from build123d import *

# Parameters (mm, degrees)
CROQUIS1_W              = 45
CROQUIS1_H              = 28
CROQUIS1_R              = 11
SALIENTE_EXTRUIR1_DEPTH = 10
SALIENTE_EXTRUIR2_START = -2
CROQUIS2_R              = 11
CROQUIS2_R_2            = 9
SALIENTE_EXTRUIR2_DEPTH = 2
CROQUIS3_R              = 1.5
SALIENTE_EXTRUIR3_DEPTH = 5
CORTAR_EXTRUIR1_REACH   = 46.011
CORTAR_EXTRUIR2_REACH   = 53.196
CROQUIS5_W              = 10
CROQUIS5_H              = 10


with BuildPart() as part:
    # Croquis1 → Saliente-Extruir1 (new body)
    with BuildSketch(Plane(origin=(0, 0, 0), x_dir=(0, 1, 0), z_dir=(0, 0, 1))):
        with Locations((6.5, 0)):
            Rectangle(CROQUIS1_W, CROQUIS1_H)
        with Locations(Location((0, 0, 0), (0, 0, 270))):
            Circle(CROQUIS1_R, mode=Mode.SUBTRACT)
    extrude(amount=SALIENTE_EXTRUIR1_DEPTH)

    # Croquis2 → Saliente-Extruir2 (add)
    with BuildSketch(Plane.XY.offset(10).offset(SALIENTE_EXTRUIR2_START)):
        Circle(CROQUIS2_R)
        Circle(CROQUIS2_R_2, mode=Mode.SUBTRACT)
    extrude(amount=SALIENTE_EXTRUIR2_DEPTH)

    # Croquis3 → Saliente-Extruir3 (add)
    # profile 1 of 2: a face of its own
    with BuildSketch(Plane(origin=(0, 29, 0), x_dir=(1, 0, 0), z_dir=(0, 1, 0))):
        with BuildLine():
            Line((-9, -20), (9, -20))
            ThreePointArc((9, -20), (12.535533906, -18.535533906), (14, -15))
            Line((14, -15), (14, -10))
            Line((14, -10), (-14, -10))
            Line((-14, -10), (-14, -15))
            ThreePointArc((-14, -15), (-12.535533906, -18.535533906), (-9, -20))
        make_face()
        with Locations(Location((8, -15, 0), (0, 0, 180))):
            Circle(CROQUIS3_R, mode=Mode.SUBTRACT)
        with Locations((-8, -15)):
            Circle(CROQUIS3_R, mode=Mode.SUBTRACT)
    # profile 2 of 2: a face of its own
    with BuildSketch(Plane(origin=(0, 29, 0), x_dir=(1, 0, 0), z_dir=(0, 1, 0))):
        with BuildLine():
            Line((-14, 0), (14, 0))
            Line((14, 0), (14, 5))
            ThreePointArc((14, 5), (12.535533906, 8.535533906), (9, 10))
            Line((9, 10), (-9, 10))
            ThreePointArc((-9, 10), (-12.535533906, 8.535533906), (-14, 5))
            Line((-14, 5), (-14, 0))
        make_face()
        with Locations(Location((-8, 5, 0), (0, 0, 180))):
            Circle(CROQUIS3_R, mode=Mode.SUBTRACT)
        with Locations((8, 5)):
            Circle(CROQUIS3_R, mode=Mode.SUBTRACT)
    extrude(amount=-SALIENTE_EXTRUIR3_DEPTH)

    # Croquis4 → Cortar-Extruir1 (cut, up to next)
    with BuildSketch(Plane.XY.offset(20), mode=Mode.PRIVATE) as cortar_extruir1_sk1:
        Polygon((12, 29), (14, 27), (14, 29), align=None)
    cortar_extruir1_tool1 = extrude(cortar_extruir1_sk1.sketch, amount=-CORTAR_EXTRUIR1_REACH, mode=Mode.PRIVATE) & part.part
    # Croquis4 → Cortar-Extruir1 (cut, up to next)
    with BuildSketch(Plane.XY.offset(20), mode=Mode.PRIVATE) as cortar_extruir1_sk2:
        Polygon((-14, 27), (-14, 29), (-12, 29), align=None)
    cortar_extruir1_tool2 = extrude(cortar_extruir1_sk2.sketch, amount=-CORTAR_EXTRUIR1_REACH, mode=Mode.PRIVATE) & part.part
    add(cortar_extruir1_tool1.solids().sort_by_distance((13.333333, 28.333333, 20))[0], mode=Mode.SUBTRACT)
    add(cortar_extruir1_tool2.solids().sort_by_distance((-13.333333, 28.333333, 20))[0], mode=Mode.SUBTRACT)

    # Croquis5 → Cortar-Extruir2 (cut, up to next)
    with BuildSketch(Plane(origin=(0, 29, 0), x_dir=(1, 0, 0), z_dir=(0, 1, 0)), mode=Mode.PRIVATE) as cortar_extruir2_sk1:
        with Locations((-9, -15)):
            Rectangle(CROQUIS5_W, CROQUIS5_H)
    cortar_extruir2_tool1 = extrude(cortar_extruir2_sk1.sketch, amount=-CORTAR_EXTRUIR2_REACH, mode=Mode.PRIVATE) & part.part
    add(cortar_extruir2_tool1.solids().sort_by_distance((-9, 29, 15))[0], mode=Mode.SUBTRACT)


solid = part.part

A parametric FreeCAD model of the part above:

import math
import FreeCAD as App
import Part
import Sketcher
from FreeCAD import Vector


def add_polygon(sketch, points):
    """Adds a closed chain of lines whose ends are joined by coincident constraints."""
    first, n = sketch.GeometryCount, len(points)
    for a, b in zip(points, points[1:] + points[:1]):
        sketch.addGeometry(Part.LineSegment(App.Vector(*a, 0), App.Vector(*b, 0)), False)
    for i in range(n):
        sketch.addConstraint(Sketcher.Constraint("Coincident", first + i, 2, first + (i + 1) % n, 1))

doc = App.newDocument("Part")
body = doc.addObject("PartDesign::Body", "Body")

# Sketch on XY plane
sketch1 = body.newObject("Sketcher::SketchObject", "Sketch")
sketch1.AttachmentSupport = (doc.getObject("XY_Plane"), [""])
sketch1.MapMode = "FlatFace"
add_polygon(sketch1, [(-14, -16), (14, -16), (14, 29), (-14, 29)])  # lines 0-3
sketch1.addGeometry(Part.Circle(Vector(0, 0, 0), Vector(0, 0, 1), 11), False)  # 4
sketch1.addConstraint([
    Sketcher.Constraint("Horizontal", 0),
    Sketcher.Constraint("Vertical", 1),
    Sketcher.Constraint("Horizontal", 2),
    Sketcher.Constraint("Vertical", 3),
    Sketcher.Constraint("Coincident", 4, 3, -1, 1),
    Sketcher.Constraint("Diameter", 4, 22.0),
    Sketcher.Constraint("DistanceX", 0, 1, 0, 2, 28.0),
    Sketcher.Constraint("DistanceY", 1, 1, 1, 2, 45.0),
    Sketcher.Constraint("DistanceX", -1, 1, 0, 2, 14.0),
    Sketcher.Constraint("DistanceY", 0, 2, -1, 1, 16.0),
])
pad1 = body.newObject("PartDesign::Pad", "Pad")
pad1.Profile = sketch1
pad1.Length = 10

# Sketch on XY plane
sketch2 = body.newObject("Sketcher::SketchObject", "Sketch001")
sketch2.AttachmentSupport = (doc.getObject("XY_Plane"), [""])
sketch2.MapMode = "FlatFace"
sketch2.AttachmentOffset = App.Placement(Vector(0, 0, 8), App.Rotation())
sketch2.addGeometry([
    Part.Circle(Vector(0, 0, 0), Vector(0, 0, 1), 11),
    Part.Circle(Vector(0, 0, 0), Vector(0, 0, 1), 9),
], False)
sketch2.addConstraint([
    Sketcher.Constraint("Coincident", 0, 3, -1, 1),
    Sketcher.Constraint("Coincident", 1, 3, -1, 1),
    Sketcher.Constraint("Diameter", 0, 22.0),
    Sketcher.Constraint("Diameter", 1, 18.0),
])
pad2 = body.newObject("PartDesign::Pad", "Pad001")
pad2.Profile = sketch2
pad2.Length = 2

# Sketch on XZ plane
sketch3 = body.newObject("Sketcher::SketchObject", "Sketch002")
sketch3.AttachmentSupport = (doc.getObject("XZ_Plane"), [""])
sketch3.MapMode = "FlatFace"
sketch3.AttachmentOffset = App.Placement(Vector(0, 0, -29), App.Rotation())
sketch3.addGeometry([
    Part.LineSegment(Vector(-9, 20, 0), Vector(9, 20, 0)),  # 0
    Part.ArcOfCircle(Part.Circle(Vector(9, 15, 0), Vector(0, 0, 1), 5), math.radians(0), math.radians(90)),  # 1
    Part.LineSegment(Vector(14, 15, 0), Vector(14, 10, 0)),  # 2
    Part.LineSegment(Vector(14, 10, 0), Vector(-14, 10, 0)),  # 3
    Part.LineSegment(Vector(-14, 10, 0), Vector(-14, 15, 0)),  # 4
    Part.ArcOfCircle(Part.Circle(Vector(-9, 15, 0), Vector(0, 0, 1), 5), math.radians(90), math.radians(180)),  # 5
    Part.Circle(Vector(-8, 15, 0), Vector(0, 0, 1), 1.5),  # 6
    Part.Circle(Vector(8, 15, 0), Vector(0, 0, 1), 1.5),  # 7
    Part.LineSegment(Vector(-14, 0, 0), Vector(14, 0, 0)),  # 8
    Part.LineSegment(Vector(14, 0, 0), Vector(14, -5, 0)),  # 9
    Part.ArcOfCircle(Part.Circle(Vector(9, -5, 0), Vector(0, 0, 1), 5), math.radians(-90), math.radians(0)),  # 10
    Part.LineSegment(Vector(9, -10, 0), Vector(-9, -10, 0)),  # 11
    Part.ArcOfCircle(Part.Circle(Vector(-9, -5, 0), Vector(0, 0, 1), 5), math.radians(180), math.radians(270)),  # 12
    Part.LineSegment(Vector(-14, -5, 0), Vector(-14, 0, 0)),  # 13
    Part.Circle(Vector(-8, -5, 0), Vector(0, 0, 1), 1.5),  # 14
    Part.Circle(Vector(8, -5, 0), Vector(0, 0, 1), 1.5),  # 15
], False)
sketch3.addConstraint([
    Sketcher.Constraint("Tangent", 0, 2, 1, 2),
    Sketcher.Constraint("Tangent", 1, 1, 2, 1),
    Sketcher.Constraint("Coincident", 2, 2, 3, 1),
    Sketcher.Constraint("Coincident", 3, 2, 4, 1),
    Sketcher.Constraint("Tangent", 4, 2, 5, 2),
    Sketcher.Constraint("Tangent", 5, 1, 0, 1),
    Sketcher.Constraint("Coincident", 8, 2, 9, 1),
    Sketcher.Constraint("Tangent", 9, 2, 10, 2),
    Sketcher.Constraint("Tangent", 10, 1, 11, 1),
    Sketcher.Constraint("Tangent", 11, 2, 12, 2),
    Sketcher.Constraint("Tangent", 12, 1, 13, 1),
    Sketcher.Constraint("Coincident", 13, 2, 8, 1),
    Sketcher.Constraint("Horizontal", 0),
    Sketcher.Constraint("Vertical", 2),
    Sketcher.Constraint("Horizontal", 3),
    Sketcher.Constraint("Vertical", 4),
    Sketcher.Constraint("Horizontal", 8),
    Sketcher.Constraint("Vertical", 9),
    Sketcher.Constraint("Horizontal", 11),
    Sketcher.Constraint("Vertical", 13),
    Sketcher.Constraint("Equal", 1, 5),
    Sketcher.Constraint("Equal", 6, 7),
    Sketcher.Constraint("Equal", 5, 10),
    Sketcher.Constraint("Equal", 10, 12),
    Sketcher.Constraint("Equal", 7, 14),
    Sketcher.Constraint("Equal", 14, 15),
    Sketcher.Constraint("Symmetric", 8, 2, 13, 2, -1, 1),
    Sketcher.Constraint("Symmetric", 6, 3, 7, 3, -2),
    Sketcher.Constraint("Symmetric", 14, 3, 15, 3, -2),
    Sketcher.Constraint("Horizontal", 5, 3, 6, 3),
    Sketcher.Constraint("Horizontal", 12, 3, 14, 3),
    Sketcher.Constraint("Vertical", 1, 3, 10, 3),
    Sketcher.Constraint("Vertical", 5, 3, 12, 3),
    Sketcher.Constraint("Vertical", 6, 3, 14, 3),
    Sketcher.Constraint("Equal", 4, 9),
    Sketcher.Constraint("Diameter", 6, 3.0),
    Sketcher.Constraint("Radius", 1, 5.0),
    Sketcher.Constraint("DistanceX", 0, 1, 0, 2, 18.0),
    Sketcher.Constraint("DistanceY", 2, 2, 2, 1, 5.0),
    Sketcher.Constraint("DistanceY", -1, 1, 1, 3, 15.0),
    Sketcher.Constraint("DistanceX", 6, 3, -1, 1, 8.0),
])
pad3 = body.newObject("PartDesign::Pad", "Pad002")
pad3.Profile = sketch3
pad3.Length = 5

# Sketch on XY plane
sketch4 = body.newObject("Sketcher::SketchObject", "Sketch003")
sketch4.AttachmentSupport = (doc.getObject("XY_Plane"), [""])
sketch4.MapMode = "FlatFace"
sketch4.AttachmentOffset = App.Placement(Vector(0, 0, 20), App.Rotation())
add_polygon(sketch4, [(12, 29), (14, 27), (14, 29)])  # lines 0-2
sketch4.addConstraint([
    Sketcher.Constraint("Vertical", 1),
    Sketcher.Constraint("Horizontal", 2),
    Sketcher.Constraint("Equal", 2, 1),
    Sketcher.Constraint("DistanceX", 2, 2, 2, 1, 2.0),
    Sketcher.Constraint("DistanceX", -1, 1, 0, 2, 14.0),
    Sketcher.Constraint("DistanceY", -1, 1, 0, 2, 27.0),
])
pocket1 = body.newObject("PartDesign::Pocket", "Pocket")
pocket1.Profile = sketch4
pocket1.Length = 29

# Sketch on XY plane
sketch5 = body.newObject("Sketcher::SketchObject", "Sketch004")
sketch5.AttachmentSupport = (doc.getObject("XY_Plane"), [""])
sketch5.MapMode = "FlatFace"
sketch5.AttachmentOffset = App.Placement(Vector(0, 0, 20), App.Rotation())
add_polygon(sketch5, [(-14, 29), (-14, 27), (-12, 29)])  # lines 0-2
sketch5.addConstraint([
    Sketcher.Constraint("Vertical", 0),
    Sketcher.Constraint("Horizontal", 2),
    Sketcher.Constraint("Equal", 2, 0),
    Sketcher.Constraint("DistanceX", 2, 2, 2, 1, 2.0),
    Sketcher.Constraint("DistanceX", 0, 2, -1, 1, 14.0),
    Sketcher.Constraint("DistanceY", -1, 1, 0, 2, 27.0),
])
pocket2 = body.newObject("PartDesign::Pocket", "Pocket001")
pocket2.Profile = sketch5
pocket2.Length = 29

# Sketch on XZ plane
sketch6 = body.newObject("Sketcher::SketchObject", "Sketch005")
sketch6.AttachmentSupport = (doc.getObject("XZ_Plane"), [""])
sketch6.MapMode = "FlatFace"
sketch6.AttachmentOffset = App.Placement(Vector(0, 0, -29), App.Rotation())
add_polygon(sketch6, [(-14, 10), (-14, 20), (-4, 20), (-4, 10)])  # lines 0-3
sketch6.addConstraint([
    Sketcher.Constraint("Vertical", 0),
    Sketcher.Constraint("Horizontal", 1),
    Sketcher.Constraint("Vertical", 2),
    Sketcher.Constraint("Horizontal", 3),
    Sketcher.Constraint("Equal", 3, 0),
    Sketcher.Constraint("DistanceX", 1, 1, 1, 2, 10.0),
    Sketcher.Constraint("DistanceX", 0, 2, -1, 1, 14.0),
    Sketcher.Constraint("DistanceY", -1, 1, 0, 2, 20.0),
])
pocket3 = body.newObject("PartDesign::Pocket", "Pocket002")
pocket3.Profile = sketch6
pocket3.Length = 5
pocket3.Reversed = True

doc.recompute()
